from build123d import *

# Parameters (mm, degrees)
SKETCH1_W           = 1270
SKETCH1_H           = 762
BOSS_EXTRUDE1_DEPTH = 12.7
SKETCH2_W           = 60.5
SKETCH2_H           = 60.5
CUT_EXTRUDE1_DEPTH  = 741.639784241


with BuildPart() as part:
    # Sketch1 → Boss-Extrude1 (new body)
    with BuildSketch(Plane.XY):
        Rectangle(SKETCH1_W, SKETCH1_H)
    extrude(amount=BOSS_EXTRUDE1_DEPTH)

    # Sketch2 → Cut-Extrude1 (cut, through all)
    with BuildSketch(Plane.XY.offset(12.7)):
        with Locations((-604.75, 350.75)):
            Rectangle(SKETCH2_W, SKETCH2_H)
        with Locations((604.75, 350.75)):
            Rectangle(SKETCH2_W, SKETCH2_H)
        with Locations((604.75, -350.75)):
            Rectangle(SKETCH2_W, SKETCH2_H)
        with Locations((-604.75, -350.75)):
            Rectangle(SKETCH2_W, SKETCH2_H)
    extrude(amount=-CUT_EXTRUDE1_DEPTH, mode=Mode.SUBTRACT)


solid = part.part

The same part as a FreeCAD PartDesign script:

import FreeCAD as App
import Part
import Sketcher
from FreeCAD import Vector
Q = App.Units.Quantity


def add_polygon(sketch, points):
    """Adds a closed chain of lines whose ends are joined by coincident constraints."""
    first, n = sketch.GeometryCount, len(points)
    for a, b in zip(points, points[1:] + points[:1]):
        sketch.addGeometry(Part.LineSegment(App.Vector(*a, 0), App.Vector(*b, 0)), False)
    for i in range(n):
        sketch.addConstraint(Sketcher.Constraint("Coincident", first + i, 2, first + (i + 1) % n, 1))

doc = App.newDocument("Part")
body = doc.addObject("PartDesign::Body", "Body")

# Sketch on XY plane
sketch1 = body.newObject("Sketcher::SketchObject", "Sketch")
sketch1.AttachmentSupport = (doc.getObject("XY_Plane"), [""])
sketch1.MapMode = "FlatFace"
add_polygon(sketch1, [(-635, 381), (-635, -381), (635, -381), (635, 381)])  # lines 0-3
sketch1.addConstraint([
    Sketcher.Constraint("Vertical", 0),
    Sketcher.Constraint("Horizontal", 1),
    Sketcher.Constraint("Vertical", 2),
    Sketcher.Constraint("Horizontal", 3),
    Sketcher.Constraint("Symmetric", 0, 2, 2, 2, -1, 1),
    Sketcher.Constraint("DistanceX", 1, 1, 1, 2, Q("50 in")),
    Sketcher.Constraint("DistanceY", 0, 2, 0, 1, Q("30 in")),
])
pad1 = body.newObject("PartDesign::Pad", "Pad")
pad1.Profile = sketch1
pad1.Length = Q("0.5 in")

# Sketch on XY plane
sketch2 = body.newObject("Sketcher::SketchObject", "Sketch001")
sketch2.AttachmentSupport = (doc.getObject("XY_Plane"), [""])
sketch2.MapMode = "FlatFace"
sketch2.AttachmentOffset = App.Placement(Vector(0, 0, 0.5 * 25.4), App.Rotation())
add_polygon(sketch2, [(-635, 381), (-635, 320.5), (-574.5, 320.5), (-574.5, 381)])  # lines 0-3
add_polygon(sketch2, [(574.5, 381), (574.5, 320.5), (635, 320.5), (635, 381)])  # lines 4-7
add_polygon(sketch2, [(574.5, -320.5), (574.5, -381), (635, -381), (635, -320.5)])  # lines 8-11
add_polygon(sketch2, [(-635, -320.5), (-635, -381), (-574.5, -381), (-574.5, -320.5)])  # lines 12-15
sketch2.addConstraint([
    Sketcher.Constraint("Vertical", 0),
    Sketcher.Constraint("Horizontal", 1),
    Sketcher.Constraint("Vertical", 2),
    Sketcher.Constraint("Horizontal", 3),
    Sketcher.Constraint("Vertical", 4),
    Sketcher.Constraint("Horizontal", 5),
    Sketcher.Constraint("Vertical", 6),
    Sketcher.Constraint("Horizontal", 7),
    Sketcher.Constraint("Vertical", 8),
    Sketcher.Constraint("Horizontal", 9),
    Sketcher.Constraint("Vertical", 10),
    Sketcher.Constraint("Horizontal", 11),
    Sketcher.Constraint("Vertical", 12),
    Sketcher.Constraint("Horizontal", 13),
    Sketcher.Constraint("Vertical", 14),
    Sketcher.Constraint("Horizontal", 15),
    Sketcher.Constraint("Symmetric", 2, 2, 8, 2, -1, 1),
    Sketcher.Constraint("Symmetric", 0, 2, 10, 2, -1, 1),
    Sketcher.Constraint("Symmetric", 6, 2, 12, 2, -1, 1),
    Sketcher.Constraint("Symmetric", 4, 2, 14, 2, -1, 1),
    Sketcher.Constraint("Symmetric", 1, 2, 4, 2, -2),
    Sketcher.Constraint("Symmetric", 3, 2, 6, 2, -2),
    Sketcher.Constraint("Equal", 15, 0),
    Sketcher.Constraint("DistanceX", 0, 2, -1, 1, Q("25 in")),
    Sketcher.Constraint("DistanceY", -1, 1, 2, 2, Q("15 in")),
    Sketcher.Constraint("DistanceX", 1, 1, 1, 2, Q("60.5 mm")),
])
pocket1 = body.newObject("PartDesign::Pocket", "Pocket")
pocket1.Profile = sketch2
pocket1.Type = "ThroughAll"

doc.recompute()
